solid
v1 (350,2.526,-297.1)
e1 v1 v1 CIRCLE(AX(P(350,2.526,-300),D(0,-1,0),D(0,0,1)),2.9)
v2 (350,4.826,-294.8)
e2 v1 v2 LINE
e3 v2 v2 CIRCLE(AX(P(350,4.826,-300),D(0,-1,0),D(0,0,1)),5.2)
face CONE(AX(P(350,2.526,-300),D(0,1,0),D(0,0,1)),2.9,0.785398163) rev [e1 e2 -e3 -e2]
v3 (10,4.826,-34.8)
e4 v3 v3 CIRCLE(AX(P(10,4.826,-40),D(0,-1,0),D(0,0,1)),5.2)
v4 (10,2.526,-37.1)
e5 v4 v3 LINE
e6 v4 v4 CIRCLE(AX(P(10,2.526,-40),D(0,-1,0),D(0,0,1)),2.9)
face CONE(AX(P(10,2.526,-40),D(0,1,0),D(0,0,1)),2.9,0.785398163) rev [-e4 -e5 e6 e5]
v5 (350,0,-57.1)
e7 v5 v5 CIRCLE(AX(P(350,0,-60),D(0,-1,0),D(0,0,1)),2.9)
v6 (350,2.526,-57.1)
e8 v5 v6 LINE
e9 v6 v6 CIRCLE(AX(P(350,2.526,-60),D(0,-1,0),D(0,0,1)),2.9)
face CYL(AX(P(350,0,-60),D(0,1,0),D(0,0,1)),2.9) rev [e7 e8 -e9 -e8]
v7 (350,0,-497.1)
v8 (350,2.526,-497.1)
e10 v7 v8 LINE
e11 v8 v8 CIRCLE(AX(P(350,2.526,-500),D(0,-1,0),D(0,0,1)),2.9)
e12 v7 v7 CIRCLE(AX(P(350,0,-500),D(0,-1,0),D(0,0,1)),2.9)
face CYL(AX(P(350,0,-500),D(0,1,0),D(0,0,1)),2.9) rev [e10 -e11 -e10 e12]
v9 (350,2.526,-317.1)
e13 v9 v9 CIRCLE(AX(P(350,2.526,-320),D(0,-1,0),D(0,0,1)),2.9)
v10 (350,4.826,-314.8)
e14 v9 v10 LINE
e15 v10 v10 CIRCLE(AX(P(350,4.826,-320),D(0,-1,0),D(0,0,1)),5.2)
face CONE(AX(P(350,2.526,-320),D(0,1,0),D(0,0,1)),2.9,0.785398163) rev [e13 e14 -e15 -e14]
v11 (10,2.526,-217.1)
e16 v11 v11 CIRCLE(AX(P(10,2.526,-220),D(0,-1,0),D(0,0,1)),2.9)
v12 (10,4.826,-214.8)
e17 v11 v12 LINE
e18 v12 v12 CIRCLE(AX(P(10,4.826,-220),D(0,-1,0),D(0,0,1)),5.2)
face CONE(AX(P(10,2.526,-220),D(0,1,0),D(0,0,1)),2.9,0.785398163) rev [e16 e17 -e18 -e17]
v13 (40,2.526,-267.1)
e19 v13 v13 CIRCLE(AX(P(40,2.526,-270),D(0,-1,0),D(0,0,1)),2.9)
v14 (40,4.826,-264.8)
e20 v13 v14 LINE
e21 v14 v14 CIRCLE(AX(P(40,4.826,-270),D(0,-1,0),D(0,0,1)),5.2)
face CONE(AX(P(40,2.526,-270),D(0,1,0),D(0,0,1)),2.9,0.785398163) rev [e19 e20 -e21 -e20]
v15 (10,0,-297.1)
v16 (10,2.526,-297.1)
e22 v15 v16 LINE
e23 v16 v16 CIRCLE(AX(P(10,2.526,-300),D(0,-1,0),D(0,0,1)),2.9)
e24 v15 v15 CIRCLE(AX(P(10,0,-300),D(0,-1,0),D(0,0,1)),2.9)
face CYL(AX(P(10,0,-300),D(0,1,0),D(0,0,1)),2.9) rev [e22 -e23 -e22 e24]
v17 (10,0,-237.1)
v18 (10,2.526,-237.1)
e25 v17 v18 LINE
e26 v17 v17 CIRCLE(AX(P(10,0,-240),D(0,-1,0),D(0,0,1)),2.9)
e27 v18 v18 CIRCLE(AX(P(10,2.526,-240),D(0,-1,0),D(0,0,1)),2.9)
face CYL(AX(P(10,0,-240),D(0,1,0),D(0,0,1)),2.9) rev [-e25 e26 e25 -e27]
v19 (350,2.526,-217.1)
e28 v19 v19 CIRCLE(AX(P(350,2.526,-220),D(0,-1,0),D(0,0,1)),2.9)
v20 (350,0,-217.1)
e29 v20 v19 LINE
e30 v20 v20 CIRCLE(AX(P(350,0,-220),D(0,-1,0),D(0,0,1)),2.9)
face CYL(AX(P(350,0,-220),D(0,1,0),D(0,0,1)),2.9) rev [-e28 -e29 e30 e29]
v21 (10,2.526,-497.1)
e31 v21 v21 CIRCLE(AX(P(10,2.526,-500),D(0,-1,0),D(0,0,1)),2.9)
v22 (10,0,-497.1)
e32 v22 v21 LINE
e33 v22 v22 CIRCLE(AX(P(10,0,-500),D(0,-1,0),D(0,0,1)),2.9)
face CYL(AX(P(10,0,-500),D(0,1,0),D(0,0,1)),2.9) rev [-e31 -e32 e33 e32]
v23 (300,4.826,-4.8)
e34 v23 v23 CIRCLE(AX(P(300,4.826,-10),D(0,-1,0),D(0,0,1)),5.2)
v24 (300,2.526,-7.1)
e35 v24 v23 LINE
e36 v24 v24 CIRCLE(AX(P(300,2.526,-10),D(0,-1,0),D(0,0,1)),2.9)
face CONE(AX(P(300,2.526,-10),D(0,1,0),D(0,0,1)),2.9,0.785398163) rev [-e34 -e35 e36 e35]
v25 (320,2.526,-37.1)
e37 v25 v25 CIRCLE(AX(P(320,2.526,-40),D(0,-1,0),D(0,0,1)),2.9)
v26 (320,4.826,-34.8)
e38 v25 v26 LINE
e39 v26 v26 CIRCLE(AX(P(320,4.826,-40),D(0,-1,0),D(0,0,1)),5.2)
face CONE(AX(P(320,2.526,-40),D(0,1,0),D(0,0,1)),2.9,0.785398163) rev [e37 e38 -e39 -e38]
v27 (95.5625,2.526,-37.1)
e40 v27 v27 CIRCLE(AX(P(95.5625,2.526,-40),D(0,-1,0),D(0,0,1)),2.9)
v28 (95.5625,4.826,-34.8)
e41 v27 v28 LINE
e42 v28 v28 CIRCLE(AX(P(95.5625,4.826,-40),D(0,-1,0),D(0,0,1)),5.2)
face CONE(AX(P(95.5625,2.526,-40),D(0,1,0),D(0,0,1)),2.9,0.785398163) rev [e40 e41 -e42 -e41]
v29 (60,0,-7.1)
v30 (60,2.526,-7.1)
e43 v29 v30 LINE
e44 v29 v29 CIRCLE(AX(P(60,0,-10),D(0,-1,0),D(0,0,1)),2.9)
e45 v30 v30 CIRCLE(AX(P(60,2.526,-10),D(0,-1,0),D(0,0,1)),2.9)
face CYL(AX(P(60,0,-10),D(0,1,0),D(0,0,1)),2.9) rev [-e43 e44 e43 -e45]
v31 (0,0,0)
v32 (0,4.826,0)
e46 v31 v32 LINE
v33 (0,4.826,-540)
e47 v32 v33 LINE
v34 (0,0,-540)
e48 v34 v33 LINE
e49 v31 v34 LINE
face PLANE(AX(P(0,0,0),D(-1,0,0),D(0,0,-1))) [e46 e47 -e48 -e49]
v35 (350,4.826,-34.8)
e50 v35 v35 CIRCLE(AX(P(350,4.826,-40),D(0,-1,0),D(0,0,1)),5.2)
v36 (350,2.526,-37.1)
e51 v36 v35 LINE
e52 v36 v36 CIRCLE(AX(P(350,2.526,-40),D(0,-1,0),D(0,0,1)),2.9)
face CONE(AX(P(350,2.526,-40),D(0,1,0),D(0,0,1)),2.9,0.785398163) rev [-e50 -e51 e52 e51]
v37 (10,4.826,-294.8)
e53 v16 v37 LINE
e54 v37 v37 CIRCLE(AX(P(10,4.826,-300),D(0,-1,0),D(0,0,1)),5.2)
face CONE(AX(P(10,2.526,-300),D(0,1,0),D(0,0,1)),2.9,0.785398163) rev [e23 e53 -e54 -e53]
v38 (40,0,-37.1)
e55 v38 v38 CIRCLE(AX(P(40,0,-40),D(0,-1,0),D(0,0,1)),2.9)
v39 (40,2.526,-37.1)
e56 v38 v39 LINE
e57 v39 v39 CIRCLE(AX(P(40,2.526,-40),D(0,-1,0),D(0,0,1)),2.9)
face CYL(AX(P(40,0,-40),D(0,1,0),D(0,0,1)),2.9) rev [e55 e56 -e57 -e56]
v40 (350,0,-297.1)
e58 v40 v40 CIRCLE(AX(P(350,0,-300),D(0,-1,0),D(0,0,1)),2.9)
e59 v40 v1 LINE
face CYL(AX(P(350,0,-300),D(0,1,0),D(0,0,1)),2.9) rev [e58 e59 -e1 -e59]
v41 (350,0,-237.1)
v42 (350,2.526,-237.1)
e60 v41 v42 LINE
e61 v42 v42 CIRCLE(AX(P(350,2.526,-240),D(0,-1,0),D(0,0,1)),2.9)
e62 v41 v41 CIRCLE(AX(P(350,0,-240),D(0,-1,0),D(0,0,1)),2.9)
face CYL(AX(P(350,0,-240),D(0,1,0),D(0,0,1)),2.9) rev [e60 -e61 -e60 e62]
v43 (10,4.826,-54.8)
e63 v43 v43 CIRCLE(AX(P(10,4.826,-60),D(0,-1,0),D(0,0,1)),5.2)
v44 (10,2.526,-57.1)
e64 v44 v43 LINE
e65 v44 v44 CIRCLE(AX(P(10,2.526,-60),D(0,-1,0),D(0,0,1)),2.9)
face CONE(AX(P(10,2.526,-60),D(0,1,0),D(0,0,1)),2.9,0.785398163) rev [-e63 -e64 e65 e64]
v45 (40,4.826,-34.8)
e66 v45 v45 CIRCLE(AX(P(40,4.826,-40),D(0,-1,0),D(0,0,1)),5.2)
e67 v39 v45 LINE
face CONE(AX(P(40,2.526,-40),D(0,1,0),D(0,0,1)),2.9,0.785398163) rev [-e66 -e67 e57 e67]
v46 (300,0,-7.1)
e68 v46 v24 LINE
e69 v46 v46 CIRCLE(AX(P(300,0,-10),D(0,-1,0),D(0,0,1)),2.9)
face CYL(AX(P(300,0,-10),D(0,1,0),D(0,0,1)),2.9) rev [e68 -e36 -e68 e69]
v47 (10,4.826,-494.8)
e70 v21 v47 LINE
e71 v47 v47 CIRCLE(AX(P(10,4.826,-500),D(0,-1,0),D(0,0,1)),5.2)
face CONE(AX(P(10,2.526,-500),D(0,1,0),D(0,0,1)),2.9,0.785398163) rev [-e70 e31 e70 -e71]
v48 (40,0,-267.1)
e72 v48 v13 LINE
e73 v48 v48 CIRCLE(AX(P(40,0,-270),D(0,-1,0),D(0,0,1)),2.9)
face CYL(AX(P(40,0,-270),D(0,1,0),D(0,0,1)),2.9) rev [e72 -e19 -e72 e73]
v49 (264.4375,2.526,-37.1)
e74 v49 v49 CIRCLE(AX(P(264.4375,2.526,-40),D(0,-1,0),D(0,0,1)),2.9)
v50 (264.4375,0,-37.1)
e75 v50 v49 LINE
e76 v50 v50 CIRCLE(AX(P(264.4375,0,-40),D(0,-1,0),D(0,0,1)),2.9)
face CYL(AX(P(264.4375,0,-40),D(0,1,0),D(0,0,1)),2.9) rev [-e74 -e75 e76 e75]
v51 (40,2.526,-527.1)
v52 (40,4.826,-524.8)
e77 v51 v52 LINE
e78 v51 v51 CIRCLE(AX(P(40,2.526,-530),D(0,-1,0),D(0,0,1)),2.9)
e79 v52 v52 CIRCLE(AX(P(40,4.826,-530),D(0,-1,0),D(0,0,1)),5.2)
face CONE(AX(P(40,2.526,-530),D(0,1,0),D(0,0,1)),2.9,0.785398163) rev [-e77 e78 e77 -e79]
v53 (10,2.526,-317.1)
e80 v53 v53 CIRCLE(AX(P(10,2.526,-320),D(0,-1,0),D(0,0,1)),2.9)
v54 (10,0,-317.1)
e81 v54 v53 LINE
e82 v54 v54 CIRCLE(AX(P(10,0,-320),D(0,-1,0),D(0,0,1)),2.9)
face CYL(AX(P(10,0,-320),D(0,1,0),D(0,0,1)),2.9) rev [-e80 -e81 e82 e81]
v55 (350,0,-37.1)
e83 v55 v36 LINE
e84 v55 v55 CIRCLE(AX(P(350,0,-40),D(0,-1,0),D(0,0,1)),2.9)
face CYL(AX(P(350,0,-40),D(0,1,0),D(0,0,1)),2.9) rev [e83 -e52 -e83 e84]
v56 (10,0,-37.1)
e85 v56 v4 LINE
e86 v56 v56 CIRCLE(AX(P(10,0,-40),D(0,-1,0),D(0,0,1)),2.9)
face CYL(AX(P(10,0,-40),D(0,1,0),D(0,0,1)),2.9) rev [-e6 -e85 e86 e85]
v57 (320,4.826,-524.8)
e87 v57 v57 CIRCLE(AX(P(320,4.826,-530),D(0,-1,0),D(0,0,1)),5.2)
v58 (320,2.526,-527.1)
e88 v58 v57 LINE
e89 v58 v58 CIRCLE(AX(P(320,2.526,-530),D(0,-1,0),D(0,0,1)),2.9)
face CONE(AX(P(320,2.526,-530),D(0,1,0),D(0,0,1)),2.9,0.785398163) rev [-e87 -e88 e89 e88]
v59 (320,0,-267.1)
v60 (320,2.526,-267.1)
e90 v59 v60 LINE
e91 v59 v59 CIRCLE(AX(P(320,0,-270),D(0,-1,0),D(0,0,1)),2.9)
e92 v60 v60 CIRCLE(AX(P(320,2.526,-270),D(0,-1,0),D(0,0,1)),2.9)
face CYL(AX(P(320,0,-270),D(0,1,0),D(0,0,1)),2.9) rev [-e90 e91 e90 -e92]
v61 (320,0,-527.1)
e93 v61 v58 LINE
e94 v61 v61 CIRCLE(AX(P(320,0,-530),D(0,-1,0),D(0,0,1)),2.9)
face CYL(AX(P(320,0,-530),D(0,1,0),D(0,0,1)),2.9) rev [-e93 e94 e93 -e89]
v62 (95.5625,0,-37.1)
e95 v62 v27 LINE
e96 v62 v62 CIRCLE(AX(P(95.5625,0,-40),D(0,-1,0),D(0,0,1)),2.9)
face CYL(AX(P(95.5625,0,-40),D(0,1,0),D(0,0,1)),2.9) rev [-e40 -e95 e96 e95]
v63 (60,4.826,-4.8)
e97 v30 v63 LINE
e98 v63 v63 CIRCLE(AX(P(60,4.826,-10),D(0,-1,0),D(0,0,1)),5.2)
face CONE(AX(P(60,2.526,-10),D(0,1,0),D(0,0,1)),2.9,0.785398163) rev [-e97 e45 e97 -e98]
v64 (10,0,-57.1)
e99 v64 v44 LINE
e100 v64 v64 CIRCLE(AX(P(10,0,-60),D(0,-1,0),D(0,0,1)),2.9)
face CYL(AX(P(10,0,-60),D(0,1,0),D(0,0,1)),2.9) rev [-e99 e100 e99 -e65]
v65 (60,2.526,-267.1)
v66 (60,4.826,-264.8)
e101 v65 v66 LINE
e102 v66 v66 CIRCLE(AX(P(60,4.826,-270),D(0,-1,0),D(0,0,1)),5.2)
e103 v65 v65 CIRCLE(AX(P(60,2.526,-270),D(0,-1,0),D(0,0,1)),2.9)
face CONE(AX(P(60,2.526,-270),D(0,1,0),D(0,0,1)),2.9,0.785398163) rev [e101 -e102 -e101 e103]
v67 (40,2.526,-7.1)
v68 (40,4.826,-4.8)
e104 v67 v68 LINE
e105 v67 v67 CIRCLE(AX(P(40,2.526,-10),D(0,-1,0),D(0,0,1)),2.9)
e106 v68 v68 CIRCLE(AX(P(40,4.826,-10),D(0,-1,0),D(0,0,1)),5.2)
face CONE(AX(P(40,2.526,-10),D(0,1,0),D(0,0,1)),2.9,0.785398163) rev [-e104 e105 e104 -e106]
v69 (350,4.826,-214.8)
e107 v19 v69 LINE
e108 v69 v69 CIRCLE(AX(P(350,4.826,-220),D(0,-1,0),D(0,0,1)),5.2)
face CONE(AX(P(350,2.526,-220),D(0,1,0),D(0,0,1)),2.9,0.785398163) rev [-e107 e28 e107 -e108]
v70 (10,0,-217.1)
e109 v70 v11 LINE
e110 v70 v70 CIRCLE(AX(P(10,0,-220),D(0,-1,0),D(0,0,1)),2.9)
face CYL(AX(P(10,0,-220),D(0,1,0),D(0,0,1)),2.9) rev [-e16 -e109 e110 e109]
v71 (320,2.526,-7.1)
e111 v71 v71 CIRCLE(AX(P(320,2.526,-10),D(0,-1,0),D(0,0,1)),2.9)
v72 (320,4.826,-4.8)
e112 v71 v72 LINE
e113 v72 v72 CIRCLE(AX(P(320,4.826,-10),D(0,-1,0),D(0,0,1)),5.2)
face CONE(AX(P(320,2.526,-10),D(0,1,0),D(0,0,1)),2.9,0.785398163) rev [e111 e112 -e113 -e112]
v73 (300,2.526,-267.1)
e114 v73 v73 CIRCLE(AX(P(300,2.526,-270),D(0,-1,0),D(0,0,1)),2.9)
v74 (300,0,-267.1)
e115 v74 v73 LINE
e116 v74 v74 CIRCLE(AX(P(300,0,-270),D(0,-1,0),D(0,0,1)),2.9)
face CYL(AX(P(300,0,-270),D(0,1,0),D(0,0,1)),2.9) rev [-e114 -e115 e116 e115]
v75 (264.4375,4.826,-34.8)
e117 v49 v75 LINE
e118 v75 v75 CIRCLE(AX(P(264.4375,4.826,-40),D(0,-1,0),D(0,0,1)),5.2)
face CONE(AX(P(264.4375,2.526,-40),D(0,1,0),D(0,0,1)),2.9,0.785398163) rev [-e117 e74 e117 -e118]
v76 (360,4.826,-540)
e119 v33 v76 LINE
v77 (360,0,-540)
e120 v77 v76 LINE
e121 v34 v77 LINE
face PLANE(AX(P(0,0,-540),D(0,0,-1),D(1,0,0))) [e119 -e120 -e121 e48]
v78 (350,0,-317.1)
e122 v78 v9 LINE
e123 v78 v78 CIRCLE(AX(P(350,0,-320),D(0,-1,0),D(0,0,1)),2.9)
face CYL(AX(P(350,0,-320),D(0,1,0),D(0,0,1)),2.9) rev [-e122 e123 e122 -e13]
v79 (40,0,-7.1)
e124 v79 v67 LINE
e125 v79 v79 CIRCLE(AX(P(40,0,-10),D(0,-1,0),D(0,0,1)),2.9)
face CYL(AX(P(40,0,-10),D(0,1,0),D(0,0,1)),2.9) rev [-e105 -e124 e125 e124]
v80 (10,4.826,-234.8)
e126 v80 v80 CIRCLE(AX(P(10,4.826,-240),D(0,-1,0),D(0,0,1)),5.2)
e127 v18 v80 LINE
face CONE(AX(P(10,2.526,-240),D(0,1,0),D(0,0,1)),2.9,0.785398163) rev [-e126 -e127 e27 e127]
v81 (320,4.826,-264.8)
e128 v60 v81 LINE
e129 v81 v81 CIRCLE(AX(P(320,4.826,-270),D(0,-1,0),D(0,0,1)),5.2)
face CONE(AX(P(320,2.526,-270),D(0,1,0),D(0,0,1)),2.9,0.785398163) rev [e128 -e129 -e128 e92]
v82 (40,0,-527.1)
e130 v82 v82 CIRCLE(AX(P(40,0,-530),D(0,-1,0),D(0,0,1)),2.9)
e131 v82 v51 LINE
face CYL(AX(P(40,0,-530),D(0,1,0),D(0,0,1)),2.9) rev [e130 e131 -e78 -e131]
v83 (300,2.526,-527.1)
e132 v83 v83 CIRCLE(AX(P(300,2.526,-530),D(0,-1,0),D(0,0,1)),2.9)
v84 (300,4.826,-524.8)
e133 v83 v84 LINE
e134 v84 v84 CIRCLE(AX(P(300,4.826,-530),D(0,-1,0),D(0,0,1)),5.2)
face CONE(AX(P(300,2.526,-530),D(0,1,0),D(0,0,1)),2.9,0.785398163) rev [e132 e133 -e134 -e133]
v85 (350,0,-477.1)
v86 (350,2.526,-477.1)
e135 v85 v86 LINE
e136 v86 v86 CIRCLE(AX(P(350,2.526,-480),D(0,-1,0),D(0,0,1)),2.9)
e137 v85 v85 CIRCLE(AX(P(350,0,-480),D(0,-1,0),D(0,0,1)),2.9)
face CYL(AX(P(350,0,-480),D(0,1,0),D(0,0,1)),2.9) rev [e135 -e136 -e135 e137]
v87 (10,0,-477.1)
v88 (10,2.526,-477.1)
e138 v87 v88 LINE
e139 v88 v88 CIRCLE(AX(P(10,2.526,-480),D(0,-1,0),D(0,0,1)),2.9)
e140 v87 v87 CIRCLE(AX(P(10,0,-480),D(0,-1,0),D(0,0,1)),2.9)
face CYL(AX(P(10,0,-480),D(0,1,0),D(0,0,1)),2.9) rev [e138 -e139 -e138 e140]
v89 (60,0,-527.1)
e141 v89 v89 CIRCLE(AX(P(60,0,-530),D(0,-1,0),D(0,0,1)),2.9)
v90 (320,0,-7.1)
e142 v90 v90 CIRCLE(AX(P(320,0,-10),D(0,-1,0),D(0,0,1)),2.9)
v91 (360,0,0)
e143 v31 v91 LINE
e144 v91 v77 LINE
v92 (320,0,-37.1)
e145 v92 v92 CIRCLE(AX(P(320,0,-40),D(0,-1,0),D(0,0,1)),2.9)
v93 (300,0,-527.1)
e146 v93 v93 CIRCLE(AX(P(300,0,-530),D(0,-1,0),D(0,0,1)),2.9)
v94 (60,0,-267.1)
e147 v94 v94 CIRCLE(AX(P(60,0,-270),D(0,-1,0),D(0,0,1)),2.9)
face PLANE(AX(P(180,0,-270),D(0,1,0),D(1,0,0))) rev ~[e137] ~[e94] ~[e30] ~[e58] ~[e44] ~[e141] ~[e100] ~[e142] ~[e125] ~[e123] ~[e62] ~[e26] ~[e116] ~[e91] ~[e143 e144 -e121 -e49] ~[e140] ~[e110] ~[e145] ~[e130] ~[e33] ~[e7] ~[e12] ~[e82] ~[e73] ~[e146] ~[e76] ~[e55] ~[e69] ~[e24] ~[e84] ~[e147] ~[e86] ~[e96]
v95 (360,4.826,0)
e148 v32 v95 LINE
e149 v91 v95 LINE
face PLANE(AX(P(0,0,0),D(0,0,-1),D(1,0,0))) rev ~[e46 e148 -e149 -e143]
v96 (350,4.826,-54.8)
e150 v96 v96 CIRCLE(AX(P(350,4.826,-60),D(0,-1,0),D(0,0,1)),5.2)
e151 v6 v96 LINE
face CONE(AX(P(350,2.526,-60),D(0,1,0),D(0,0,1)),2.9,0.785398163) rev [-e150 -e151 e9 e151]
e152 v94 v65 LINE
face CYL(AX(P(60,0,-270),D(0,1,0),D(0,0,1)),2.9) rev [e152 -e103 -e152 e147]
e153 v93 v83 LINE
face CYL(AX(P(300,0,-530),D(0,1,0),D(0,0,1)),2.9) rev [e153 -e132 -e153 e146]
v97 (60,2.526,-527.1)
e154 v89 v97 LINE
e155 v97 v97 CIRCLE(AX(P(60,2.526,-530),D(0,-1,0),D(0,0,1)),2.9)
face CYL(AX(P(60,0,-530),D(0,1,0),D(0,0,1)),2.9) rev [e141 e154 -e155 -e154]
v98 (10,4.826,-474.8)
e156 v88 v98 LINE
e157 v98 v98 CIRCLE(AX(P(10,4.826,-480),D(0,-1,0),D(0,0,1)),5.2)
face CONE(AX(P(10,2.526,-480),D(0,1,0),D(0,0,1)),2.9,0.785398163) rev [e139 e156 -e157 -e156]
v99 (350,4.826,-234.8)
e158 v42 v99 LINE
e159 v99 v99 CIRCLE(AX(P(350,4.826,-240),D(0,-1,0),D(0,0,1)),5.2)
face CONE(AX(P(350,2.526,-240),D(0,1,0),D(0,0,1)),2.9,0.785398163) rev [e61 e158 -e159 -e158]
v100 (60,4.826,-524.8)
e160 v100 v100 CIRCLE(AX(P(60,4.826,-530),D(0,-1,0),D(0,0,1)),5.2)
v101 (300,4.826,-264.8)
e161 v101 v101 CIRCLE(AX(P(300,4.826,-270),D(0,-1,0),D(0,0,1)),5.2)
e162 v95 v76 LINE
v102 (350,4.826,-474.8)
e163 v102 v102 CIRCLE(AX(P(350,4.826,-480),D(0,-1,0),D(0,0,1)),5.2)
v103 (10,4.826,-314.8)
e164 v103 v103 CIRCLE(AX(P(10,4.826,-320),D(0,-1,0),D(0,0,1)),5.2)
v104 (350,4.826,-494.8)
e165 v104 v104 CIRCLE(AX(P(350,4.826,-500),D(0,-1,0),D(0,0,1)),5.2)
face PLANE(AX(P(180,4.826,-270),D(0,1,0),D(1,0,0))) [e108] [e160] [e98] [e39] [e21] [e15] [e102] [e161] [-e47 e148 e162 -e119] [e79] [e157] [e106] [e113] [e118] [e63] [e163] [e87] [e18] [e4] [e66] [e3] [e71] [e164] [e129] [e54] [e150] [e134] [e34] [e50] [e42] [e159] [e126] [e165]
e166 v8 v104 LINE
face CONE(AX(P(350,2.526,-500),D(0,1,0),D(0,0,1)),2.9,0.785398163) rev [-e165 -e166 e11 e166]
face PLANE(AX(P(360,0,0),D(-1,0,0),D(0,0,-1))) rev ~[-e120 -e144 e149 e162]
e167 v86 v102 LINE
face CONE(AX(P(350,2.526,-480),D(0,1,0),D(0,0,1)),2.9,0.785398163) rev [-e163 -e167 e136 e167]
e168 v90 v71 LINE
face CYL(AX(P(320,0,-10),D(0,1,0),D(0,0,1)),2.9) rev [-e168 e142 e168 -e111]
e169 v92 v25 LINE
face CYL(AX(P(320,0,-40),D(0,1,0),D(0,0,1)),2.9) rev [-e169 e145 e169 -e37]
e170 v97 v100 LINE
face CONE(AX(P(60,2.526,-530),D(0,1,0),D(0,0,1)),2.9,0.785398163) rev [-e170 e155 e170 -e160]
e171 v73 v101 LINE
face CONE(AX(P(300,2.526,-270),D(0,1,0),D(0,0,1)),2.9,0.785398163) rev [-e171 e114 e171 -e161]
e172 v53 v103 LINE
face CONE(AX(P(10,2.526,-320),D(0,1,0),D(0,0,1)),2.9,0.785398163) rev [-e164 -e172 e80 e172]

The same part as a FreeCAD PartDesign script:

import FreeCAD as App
import Part
import Sketcher
from FreeCAD import Vector
Q = App.Units.Quantity


def add_polygon(sketch, points):
    """Adds a closed chain of lines whose ends are joined by coincident constraints."""
    first, n = sketch.GeometryCount, len(points)
    for a, b in zip(points, points[1:] + points[:1]):
        sketch.addGeometry(Part.LineSegment(App.Vector(*a, 0), App.Vector(*b, 0)), False)
    for i in range(n):
        sketch.addConstraint(Sketcher.Constraint("Coincident", first + i, 2, first + (i + 1) % n, 1))

doc = App.newDocument("Part")
params = doc.addObject("Spreadsheet::Sheet", "Params")
for row, (alias, value) in enumerate([
    ("sketch1_width", "360 mm"),
    ("sketch1_height", "540 mm"),
    ("pad1_length", "4.826 mm"),
    ("sketch2_height", "5.2 mm"),
    ("sketch2_height2", "2.9 mm"),
    ("groove_angle", "360 deg"),
    ("linearpattern_pitch", "55.5625 mm"),
    ("linearpattern2_pitch", "224.4375 mm"),
    ("linearpattern3_pitch", "280 mm"),
    ("sketch3_height", "5.2 mm"),
    ("sketch3_height2", "2.9 mm"),
    ("groove2_angle", "360 deg"),
    ("linearpattern4_pitch", "42.426407 mm"),
    ("linearpattern5_pitch", "280 mm"),
    ("linearpattern6_pitch", "311.44823 mm"),
    ("linearpattern7_pitch", "231.94827 mm"),
    ("linearpattern8_pitch", "260 mm"),
    ("linearpattern9_pitch", "291.547595 mm"),
    ("linearpattern10_pitch", "386.005181 mm"),
    ("linearpattern11_pitch", "382.099463 mm"),
    ("linearpattern12_pitch", "424.499706 mm"),
    ("linearpattern13_pitch", "490.917508 mm"),
    ("linearpattern14_pitch", "520 mm"),
    ("linearpattern15_pitch", "590.592922 mm"),
    ("linearpattern16_pitch", "579.827561 mm"),
    ("linearpattern17_pitch", "470.956474 mm"),
    ("linearpattern18_pitch", "520.384473 mm"),
    ("linearpattern19_pitch", "581.377674 mm"),
    ("linearpattern20_pitch", "563.02753 mm"),
    ("linearpattern21_pitch", "438.406204 mm"),
    ("linearpattern22_pitch", "367.695526 mm"),
    ("linearpattern23_pitch", "374.432905 mm"),
    ("linearpattern24_pitch", "212.132034 mm"),
    ("linearpattern25_pitch", "260.768096 mm"),
    ("linearpattern26_pitch", "311.44823 mm"),
    ("linearpattern27_pitch", "58.309519 mm"),
    ("linearpattern28_pitch", "20 mm"),
    ("linearpattern29_pitch", "260 mm"),
    ("linearpattern30_pitch", "314.006369 mm"),
], start=1):
    params.set(f"A{row}", alias)
    params.set(f"B{row}", "=" + value)
    params.setAlias(f"B{row}", alias)

body = doc.addObject("PartDesign::Body", "Body")

# Sketch on XZ plane
sketch1 = body.newObject("Sketcher::SketchObject", "Sketch")
sketch1.AttachmentSupport = (doc.getObject("XZ_Plane"), [""])
sketch1.MapMode = "FlatFace"
add_polygon(sketch1, [(0, -540), (0, 0), (360, 0), (360, -540)])  # lines 0-3
sketch1.addConstraint([
    Sketcher.Constraint("Vertical", 0),
    Sketcher.Constraint("Horizontal", 1),
    Sketcher.Constraint("Vertical", 2),
    Sketcher.Constraint("Horizontal", 3),
    Sketcher.Constraint("Coincident", 0, 2, -1, 1),
    Sketcher.Constraint("DistanceX", 1, 1, 1, 2, Q("360 mm")),
    Sketcher.Constraint("DistanceY", 0, 1, 0, 2, Q("540 mm")),
])
sketch1.setExpression("Constraints[9]", "Params.sketch1_width")
sketch1.setExpression("Constraints[10]", "Params.sketch1_height")
pad1 = body.newObject("PartDesign::Pad", "Pad")
pad1.Profile = sketch1
pad1.setExpression("Length", "Params.pad1_length")
pad1.Reversed = True

# Sketch on YZ plane
sketch2 = body.newObject("Sketcher::SketchObject", "Sketch001")
sketch2.AttachmentSupport = (doc.getObject("YZ_Plane"), [""])
sketch2.MapMode = "FlatFace"
sketch2.AttachmentOffset = App.Placement(Vector(0, 0, 40), App.Rotation())
add_polygon(sketch2, [(0, -40), (4.8, -40), (4.8, -34.8), (2.5, -37.1), (0, -37.1)])  # lines 0-4
sketch2.addGeometry(Part.LineSegment(Vector(4.8, -40, 0), Vector(0, -40, 0)), True)  # axis
sketch2.addConstraint([
    Sketcher.Constraint("Horizontal", 0),
    Sketcher.Constraint("Vertical", 1),
    Sketcher.Constraint("Horizontal", 3),
    Sketcher.Constraint("Vertical", 4),
    Sketcher.Constraint("Horizontal", 5),
    Sketcher.Constraint("Coincident", 5, 1, 0, 2),
    Sketcher.Constraint("PointOnObject", 3, 2, -2),
    Sketcher.Constraint("PointOnObject", 5, 2, -2),
    Sketcher.Constraint("Angle", 2, Q("-135 deg")),
    Sketcher.Constraint("DistanceY", 1, 1, 1, 2, Q("5.2 mm")),
    Sketcher.Constraint("DistanceY", 4, 2, 4, 1, Q("2.9 mm")),
    Sketcher.Constraint("DistanceY", 0, 2, -1, 1, Q("40 mm")),
    Sketcher.Constraint("DistanceX", 0, 1, 0, 2, Q("4.826 mm")),
])
sketch2.setExpression("Constraints[14]", "Params.sketch2_height")
sketch2.setExpression("Constraints[15]", "Params.sketch2_height2")
groove = body.newObject("PartDesign::Groove", "Groove")
groove.Profile = sketch2
groove.ReferenceAxis = (sketch2, ["Axis0"])
groove.setExpression("Angle", "Params.groove_angle")
doc.recompute()

linearpattern = body.newObject("PartDesign::LinearPattern", "LinearPattern")
linearpattern.Originals = [groove]
linearpattern.Direction = (doc.getObject("X_Axis"), [""])
linearpattern.Mode = "offset"
linearpattern.setExpression("Offset", "Params.linearpattern_pitch")
linearpattern.Occurrences = 2
body.Tip = linearpattern
doc.recompute()

linearpattern2 = body.newObject("PartDesign::LinearPattern", "LinearPattern001")
linearpattern2.Originals = [groove]
linearpattern2.Direction = (doc.getObject("X_Axis"), [""])
linearpattern2.Mode = "offset"
linearpattern2.setExpression("Offset", "Params.linearpattern2_pitch")
linearpattern2.Occurrences = 2
body.Tip = linearpattern2
doc.recompute()

linearpattern3 = body.newObject("PartDesign::LinearPattern", "LinearPattern002")
linearpattern3.Originals = [groove]
linearpattern3.Direction = (doc.getObject("X_Axis"), [""])
linearpattern3.Mode = "offset"
linearpattern3.setExpression("Offset", "Params.linearpattern3_pitch")
linearpattern3.Occurrences = 2
body.Tip = linearpattern3

# Sketch on YZ plane
sketch3 = body.newObject("Sketcher::SketchObject", "Sketch002")
sketch3.AttachmentSupport = (doc.getObject("YZ_Plane"), [""])
sketch3.MapMode = "FlatFace"
sketch3.AttachmentOffset = App.Placement(Vector(0, 0, 40), App.Rotation())
add_polygon(sketch3, [(0, -10), (4.8, -10), (4.8, -4.8), (2.5, -7.1), (0, -7.1)])  # lines 0-4
sketch3.addGeometry(Part.LineSegment(Vector(4.8, -10, 0), Vector(0, -10, 0)), True)  # axis
sketch3.addConstraint([
    Sketcher.Constraint("Horizontal", 0),
    Sketcher.Constraint("Vertical", 1),
    Sketcher.Constraint("Horizontal", 3),
    Sketcher.Constraint("Vertical", 4),
    Sketcher.Constraint("Horizontal", 5),
    Sketcher.Constraint("Coincident", 5, 1, 0, 2),
    Sketcher.Constraint("PointOnObject", 3, 2, -2),
    Sketcher.Constraint("PointOnObject", 5, 2, -2),
    Sketcher.Constraint("Angle", 2, Q("-135 deg")),
    Sketcher.Constraint("DistanceY", 1, 1, 1, 2, Q("5.2 mm")),
    Sketcher.Constraint("DistanceY", 4, 2, 4, 1, Q("2.9 mm")),
    Sketcher.Constraint("DistanceY", 0, 2, -1, 1, Q("10 mm")),
    Sketcher.Constraint("DistanceX", 0, 1, 0, 2, Q("4.826 mm")),
])
sketch3.setExpression("Constraints[14]", "Params.sketch3_height")
sketch3.setExpression("Constraints[15]", "Params.sketch3_height2")
groove2 = body.newObject("PartDesign::Groove", "Groove001")
groove2.Profile = sketch3
groove2.ReferenceAxis = (sketch3, ["Axis0"])
groove2.setExpression("Angle", "Params.groove2_angle")
doc.recompute()

datumline = body.newObject("PartDesign::Line", "DatumLine")
datumline.Placement = App.Placement(Vector(0, 0, 0), App.Rotation(Vector(0, 0, 1), Vector(-0.707106781, 0, -0.707106781)))
linearpattern4 = body.newObject("PartDesign::LinearPattern", "LinearPattern003")
linearpattern4.Originals = [groove2]
linearpattern4.Direction = (datumline, [""])
linearpattern4.Mode = "offset"
linearpattern4.setExpression("Offset", "Params.linearpattern4_pitch")
linearpattern4.Occurrences = 2
body.Tip = linearpattern4
doc.recompute()

linearpattern5 = body.newObject("PartDesign::LinearPattern", "LinearPattern004")
linearpattern5.Originals = [groove2]
linearpattern5.Direction = (doc.getObject("X_Axis"), [""])
linearpattern5.Mode = "offset"
linearpattern5.setExpression("Offset", "Params.linearpattern5_pitch")
linearpattern5.Occurrences = 2
body.Tip = linearpattern5
doc.recompute()

datumline2 = body.newObject("PartDesign::Line", "DatumLine001")
datumline2.Placement = App.Placement(Vector(0, 0, 0), App.Rotation(Vector(0, 0, 1), Vector(0.995350014, 0, -0.096324195)))
linearpattern6 = body.newObject("PartDesign::LinearPattern", "LinearPattern005")
linearpattern6.Originals = [groove2]
linearpattern6.Direction = (datumline2, [""])
linearpattern6.Mode = "offset"
linearpattern6.setExpression("Offset", "Params.linearpattern6_pitch")
linearpattern6.Occurrences = 2
body.Tip = linearpattern6
doc.recompute()

datumline3 = body.newObject("PartDesign::Line", "DatumLine002")
datumline3.Placement = App.Placement(Vector(0, 0, 0), App.Rotation(Vector(0, 0, 1), Vector(-0.129339184, 0, -0.991600411)))
linearpattern7 = body.newObject("PartDesign::LinearPattern", "LinearPattern006")
linearpattern7.Originals = [groove2]
linearpattern7.Direction = (datumline3, [""])
linearpattern7.Mode = "offset"
linearpattern7.setExpression("Offset", "Params.linearpattern7_pitch")
linearpattern7.Occurrences = 2
body.Tip = linearpattern7
doc.recompute()

linearpattern8 = body.newObject("PartDesign::LinearPattern", "LinearPattern007")
linearpattern8.Originals = [groove2]
linearpattern8.Direction = (doc.getObject("Z_Axis"), [""])
linearpattern8.Mode = "offset"
linearpattern8.setExpression("Offset", "Params.linearpattern8_pitch")
linearpattern8.Occurrences = 2
linearpattern8.Reversed = True
body.Tip = linearpattern8
doc.recompute()

datumline4 = body.newObject("PartDesign::Line", "DatumLine003")
datumline4.Placement = App.Placement(Vector(0, 0, 0), App.Rotation(Vector(0, 0, 1), Vector(-0.102899151, 0, -0.994691794)))
linearpattern9 = body.newObject("PartDesign::LinearPattern", "LinearPattern008")
linearpattern9.Originals = [groove2]
linearpattern9.Direction = (datumline4, [""])
linearpattern9.Mode = "offset"
linearpattern9.setExpression("Offset", "Params.linearpattern9_pitch")
linearpattern9.Occurrences = 2
body.Tip = linearpattern9
doc.recompute()

datumline5 = body.newObject("PartDesign::Line", "DatumLine004")
datumline5.Placement = App.Placement(Vector(0, 0, 0), App.Rotation(Vector(0, 0, 1), Vector(0.803098028, 0, -0.595846924)))
linearpattern10 = body.newObject("PartDesign::LinearPattern", "LinearPattern009")
linearpattern10.Originals = [groove2]
linearpattern10.Direction = (datumline5, [""])
linearpattern10.Mode = "offset"
linearpattern10.setExpression("Offset", "Params.linearpattern10_pitch")
linearpattern10.Occurrences = 2
body.Tip = linearpattern10
doc.recompute()

datumline6 = body.newObject("PartDesign::Line", "DatumLine005")
datumline6.Placement = App.Placement(Vector(0, 0, 0), App.Rotation(Vector(0, 0, 1), Vector(0.732793492, 0, -0.680451099)))
linearpattern11 = body.newObject("PartDesign::LinearPattern", "LinearPattern010")
linearpattern11.Originals = [groove2]
linearpattern11.Direction = (datumline6, [""])
linearpattern11.Mode = "offset"
linearpattern11.setExpression("Offset", "Params.linearpattern11_pitch")
linearpattern11.Occurrences = 2
body.Tip = linearpattern11
doc.recompute()

datumline7 = body.newObject("PartDesign::Line", "DatumLine006")
datumline7.Placement = App.Placement(Vector(0, 0, 0), App.Rotation(Vector(0, 0, 1), Vector(0.730271414, 0, -0.683157129)))
linearpattern12 = body.newObject("PartDesign::LinearPattern", "LinearPattern011")
linearpattern12.Originals = [groove2]
linearpattern12.Direction = (datumline7, [""])
linearpattern12.Mode = "offset"
linearpattern12.setExpression("Offset", "Params.linearpattern12_pitch")
linearpattern12.Occurrences = 2
body.Tip = linearpattern12
doc.recompute()

datumline8 = body.newObject("PartDesign::Line", "DatumLine007")
datumline8.Placement = App.Placement(Vector(0, 0, 0), App.Rotation(Vector(0, 0, 1), Vector(-0.061110063, 0, -0.998131034)))
linearpattern13 = body.newObject("PartDesign::LinearPattern", "LinearPattern012")
linearpattern13.Originals = [groove2]
linearpattern13.Direction = (datumline8, [""])
linearpattern13.Mode = "offset"
linearpattern13.setExpression("Offset", "Params.linearpattern13_pitch")
linearpattern13.Occurrences = 2
body.Tip = linearpattern13
doc.recompute()

linearpattern14 = body.newObject("PartDesign::LinearPattern", "LinearPattern013")
linearpattern14.Originals = [groove2]
linearpattern14.Direction = (doc.getObject("Z_Axis"), [""])
linearpattern14.Mode = "offset"
linearpattern14.setExpression("Offset", "Params.linearpattern14_pitch")
linearpattern14.Occurrences = 2
linearpattern14.Reversed = True
body.Tip = linearpattern14
doc.recompute()

datumline9 = body.newObject("PartDesign::Line", "DatumLine008")
datumline9.Placement = App.Placement(Vector(0, 0, 0), App.Rotation(Vector(0, 0, 1), Vector(0.474099823, 0, -0.8804711)))
linearpattern15 = body.newObject("PartDesign::LinearPattern", "LinearPattern014")
linearpattern15.Originals = [groove2]
linearpattern15.Direction = (datumline9, [""])
linearpattern15.Mode = "offset"
linearpattern15.setExpression("Offset", "Params.linearpattern15_pitch")
linearpattern15.Occurrences = 2
body.Tip = linearpattern15
doc.recompute()

datumline10 = body.newObject("PartDesign::Line", "DatumLine009")
datumline10.Placement = App.Placement(Vector(0, 0, 0), App.Rotation(Vector(0, 0, 1), Vector(0.534641713, 0, -0.845078836)))
linearpattern16 = body.newObject("PartDesign::LinearPattern", "LinearPattern015")
linearpattern16.Originals = [groove2]
linearpattern16.Direction = (datumline10, [""])
linearpattern16.Mode = "offset"
linearpattern16.setExpression("Offset", "Params.linearpattern16_pitch")
linearpattern16.Occurrences = 2
body.Tip = linearpattern16
doc.recompute()

datumline11 = body.newObject("PartDesign::Line", "DatumLine010")
datumline11.Placement = App.Placement(Vector(0, 0, 0), App.Rotation(Vector(0, 0, 1), Vector(-0.063700154, 0, -0.997969083)))
linearpattern17 = body.newObject("PartDesign::LinearPattern", "LinearPattern016")
linearpattern17.Originals = [groove2]
linearpattern17.Direction = (datumline11, [""])
linearpattern17.Mode = "offset"
linearpattern17.setExpression("Offset", "Params.linearpattern17_pitch")
linearpattern17.Occurrences = 2
body.Tip = linearpattern17
doc.recompute()

datumline12 = body.newObject("PartDesign::Line", "DatumLine011")
datumline12.Placement = App.Placement(Vector(0, 0, 0), App.Rotation(Vector(0, 0, 1), Vector(0.038433122, 0, -0.999261175)))
linearpattern18 = body.newObject("PartDesign::LinearPattern", "LinearPattern017")
linearpattern18.Originals = [groove2]
linearpattern18.Direction = (datumline12, [""])
linearpattern18.Mode = "offset"
linearpattern18.setExpression("Offset", "Params.linearpattern18_pitch")
linearpattern18.Occurrences = 2
body.Tip = linearpattern18
doc.recompute()

datumline13 = body.newObject("PartDesign::Line", "DatumLine012")
datumline13.Placement = App.Placement(Vector(0, 0, 0), App.Rotation(Vector(0, 0, 1), Vector(0.447213595, 0, -0.894427191)))
linearpattern19 = body.newObject("PartDesign::LinearPattern", "LinearPattern018")
linearpattern19.Originals = [groove2]
linearpattern19.Direction = (datumline13, [""])
linearpattern19.Mode = "offset"
linearpattern19.setExpression("Offset", "Params.linearpattern19_pitch")
linearpattern19.Occurrences = 2
body.Tip = linearpattern19
doc.recompute()

datumline14 = body.newObject("PartDesign::Line", "DatumLine013")
datumline14.Placement = App.Placement(Vector(0, 0, 0), App.Rotation(Vector(0, 0, 1), Vector(0.550594746, 0, -0.834772679)))
linearpattern20 = body.newObject("PartDesign::LinearPattern", "LinearPattern019")
linearpattern20.Originals = [groove2]
linearpattern20.Direction = (datumline14, [""])
linearpattern20.Mode = "offset"
linearpattern20.setExpression("Offset", "Params.linearpattern20_pitch")
linearpattern20.Occurrences = 2
body.Tip = linearpattern20
doc.recompute()

datumline15 = body.newObject("PartDesign::Line", "DatumLine014")
datumline15.Placement = App.Placement(Vector(0, 0, 0), App.Rotation(Vector(0, 0, 1), Vector(0.707106781, 0, -0.707106781)))
linearpattern21 = body.newObject("PartDesign::LinearPattern", "LinearPattern020")
linearpattern21.Originals = [groove2]
linearpattern21.Direction = (datumline15, [""])
linearpattern21.Mode = "offset"
linearpattern21.setExpression("Offset", "Params.linearpattern21_pitch")
linearpattern21.Occurrences = 2
body.Tip = linearpattern21
doc.recompute()

datumline16 = body.newObject("PartDesign::Line", "DatumLine015")
datumline16.Placement = App.Placement(Vector(0, 0, 0), App.Rotation(Vector(0, 0, 1), Vector(0.707106781, 0, -0.707106781)))
linearpattern22 = body.newObject("PartDesign::LinearPattern", "LinearPattern021")
linearpattern22.Originals = [groove2]
linearpattern22.Direction = (datumline16, [""])
linearpattern22.Mode = "offset"
linearpattern22.setExpression("Offset", "Params.linearpattern22_pitch")
linearpattern22.Occurrences = 2
body.Tip = linearpattern22
doc.recompute()

datumline17 = body.newObject("PartDesign::Line", "DatumLine016")
datumline17.Placement = App.Placement(Vector(0, 0, 0), App.Rotation(Vector(0, 0, 1), Vector(0.82791869, 0, -0.560848145)))
linearpattern23 = body.newObject("PartDesign::LinearPattern", "LinearPattern022")
linearpattern23.Originals = [groove2]
linearpattern23.Direction = (datumline17, [""])
linearpattern23.Mode = "offset"
linearpattern23.setExpression("Offset", "Params.linearpattern23_pitch")
linearpattern23.Occurrences = 2
body.Tip = linearpattern23
doc.recompute()

datumline18 = body.newObject("PartDesign::Line", "DatumLine017")
datumline18.Placement = App.Placement(Vector(0, 0, 0), App.Rotation(Vector(0, 0, 1), Vector(-0.141421356, 0, -0.989949494)))
linearpattern24 = body.newObject("PartDesign::LinearPattern", "LinearPattern023")
linearpattern24.Originals = [groove2]
linearpattern24.Direction = (datumline18, [""])
linearpattern24.Mode = "offset"
linearpattern24.setExpression("Offset", "Params.linearpattern24_pitch")
linearpattern24.Occurrences = 2
body.Tip = linearpattern24
doc.recompute()

datumline19 = body.newObject("PartDesign::Line", "DatumLine018")
datumline19.Placement = App.Placement(Vector(0, 0, 0), App.Rotation(Vector(0, 0, 1), Vector(0.076696499, 0, -0.997054486)))
linearpattern25 = body.newObject("PartDesign::LinearPattern", "LinearPattern024")
linearpattern25.Originals = [groove2]
linearpattern25.Direction = (datumline19, [""])
linearpattern25.Mode = "offset"
linearpattern25.setExpression("Offset", "Params.linearpattern25_pitch")
linearpattern25.Occurrences = 2
body.Tip = linearpattern25
doc.recompute()

datumline20 = body.newObject("PartDesign::Line", "DatumLine019")
datumline20.Placement = App.Placement(Vector(0, 0, 0), App.Rotation(Vector(0, 0, 1), Vector(-0.096324195, 0, -0.995350014)))
linearpattern26 = body.newObject("PartDesign::LinearPattern", "LinearPattern025")
linearpattern26.Originals = [groove2]
linearpattern26.Direction = (datumline20, [""])
linearpattern26.Mode = "offset"
linearpattern26.setExpression("Offset", "Params.linearpattern26_pitch")
linearpattern26.Occurrences = 2
body.Tip = linearpattern26
doc.recompute()

datumline21 = body.newObject("PartDesign::Line", "DatumLine020")
datumline21.Placement = App.Placement(Vector(0, 0, 0), App.Rotation(Vector(0, 0, 1), Vector(-0.514495755, 0, -0.857492926)))
linearpattern27 = body.newObject("PartDesign::LinearPattern", "LinearPattern026")
linearpattern27.Originals = [groove2]
linearpattern27.Direction = (datumline21, [""])
linearpattern27.Mode = "offset"
linearpattern27.setExpression("Offset", "Params.linearpattern27_pitch")
linearpattern27.Occurrences = 2
body.Tip = linearpattern27
doc.recompute()

linearpattern28 = body.newObject("PartDesign::LinearPattern", "LinearPattern027")
linearpattern28.Originals = [groove2]
linearpattern28.Direction = (doc.getObject("X_Axis"), [""])
linearpattern28.Mode = "offset"
linearpattern28.setExpression("Offset", "Params.linearpattern28_pitch")
linearpattern28.Occurrences = 2
body.Tip = linearpattern28
doc.recompute()

linearpattern29 = body.newObject("PartDesign::LinearPattern", "LinearPattern028")
linearpattern29.Originals = [groove2]
linearpattern29.Direction = (doc.getObject("X_Axis"), [""])
linearpattern29.Mode = "offset"
linearpattern29.setExpression("Offset", "Params.linearpattern29_pitch")
linearpattern29.Occurrences = 2
body.Tip = linearpattern29
doc.recompute()

datumline22 = body.newObject("PartDesign::Line", "DatumLine021")
datumline22.Placement = App.Placement(Vector(0, 0, 0), App.Rotation(Vector(0, 0, 1), Vector(0.987241121, 0, -0.159232439)))
linearpattern30 = body.newObject("PartDesign::LinearPattern", "LinearPattern029")
linearpattern30.Originals = [groove2]
linearpattern30.Direction = (datumline22, [""])
linearpattern30.Mode = "offset"
linearpattern30.setExpression("Offset", "Params.linearpattern30_pitch")
linearpattern30.Occurrences = 2
body.Tip = linearpattern30

doc.recompute()
